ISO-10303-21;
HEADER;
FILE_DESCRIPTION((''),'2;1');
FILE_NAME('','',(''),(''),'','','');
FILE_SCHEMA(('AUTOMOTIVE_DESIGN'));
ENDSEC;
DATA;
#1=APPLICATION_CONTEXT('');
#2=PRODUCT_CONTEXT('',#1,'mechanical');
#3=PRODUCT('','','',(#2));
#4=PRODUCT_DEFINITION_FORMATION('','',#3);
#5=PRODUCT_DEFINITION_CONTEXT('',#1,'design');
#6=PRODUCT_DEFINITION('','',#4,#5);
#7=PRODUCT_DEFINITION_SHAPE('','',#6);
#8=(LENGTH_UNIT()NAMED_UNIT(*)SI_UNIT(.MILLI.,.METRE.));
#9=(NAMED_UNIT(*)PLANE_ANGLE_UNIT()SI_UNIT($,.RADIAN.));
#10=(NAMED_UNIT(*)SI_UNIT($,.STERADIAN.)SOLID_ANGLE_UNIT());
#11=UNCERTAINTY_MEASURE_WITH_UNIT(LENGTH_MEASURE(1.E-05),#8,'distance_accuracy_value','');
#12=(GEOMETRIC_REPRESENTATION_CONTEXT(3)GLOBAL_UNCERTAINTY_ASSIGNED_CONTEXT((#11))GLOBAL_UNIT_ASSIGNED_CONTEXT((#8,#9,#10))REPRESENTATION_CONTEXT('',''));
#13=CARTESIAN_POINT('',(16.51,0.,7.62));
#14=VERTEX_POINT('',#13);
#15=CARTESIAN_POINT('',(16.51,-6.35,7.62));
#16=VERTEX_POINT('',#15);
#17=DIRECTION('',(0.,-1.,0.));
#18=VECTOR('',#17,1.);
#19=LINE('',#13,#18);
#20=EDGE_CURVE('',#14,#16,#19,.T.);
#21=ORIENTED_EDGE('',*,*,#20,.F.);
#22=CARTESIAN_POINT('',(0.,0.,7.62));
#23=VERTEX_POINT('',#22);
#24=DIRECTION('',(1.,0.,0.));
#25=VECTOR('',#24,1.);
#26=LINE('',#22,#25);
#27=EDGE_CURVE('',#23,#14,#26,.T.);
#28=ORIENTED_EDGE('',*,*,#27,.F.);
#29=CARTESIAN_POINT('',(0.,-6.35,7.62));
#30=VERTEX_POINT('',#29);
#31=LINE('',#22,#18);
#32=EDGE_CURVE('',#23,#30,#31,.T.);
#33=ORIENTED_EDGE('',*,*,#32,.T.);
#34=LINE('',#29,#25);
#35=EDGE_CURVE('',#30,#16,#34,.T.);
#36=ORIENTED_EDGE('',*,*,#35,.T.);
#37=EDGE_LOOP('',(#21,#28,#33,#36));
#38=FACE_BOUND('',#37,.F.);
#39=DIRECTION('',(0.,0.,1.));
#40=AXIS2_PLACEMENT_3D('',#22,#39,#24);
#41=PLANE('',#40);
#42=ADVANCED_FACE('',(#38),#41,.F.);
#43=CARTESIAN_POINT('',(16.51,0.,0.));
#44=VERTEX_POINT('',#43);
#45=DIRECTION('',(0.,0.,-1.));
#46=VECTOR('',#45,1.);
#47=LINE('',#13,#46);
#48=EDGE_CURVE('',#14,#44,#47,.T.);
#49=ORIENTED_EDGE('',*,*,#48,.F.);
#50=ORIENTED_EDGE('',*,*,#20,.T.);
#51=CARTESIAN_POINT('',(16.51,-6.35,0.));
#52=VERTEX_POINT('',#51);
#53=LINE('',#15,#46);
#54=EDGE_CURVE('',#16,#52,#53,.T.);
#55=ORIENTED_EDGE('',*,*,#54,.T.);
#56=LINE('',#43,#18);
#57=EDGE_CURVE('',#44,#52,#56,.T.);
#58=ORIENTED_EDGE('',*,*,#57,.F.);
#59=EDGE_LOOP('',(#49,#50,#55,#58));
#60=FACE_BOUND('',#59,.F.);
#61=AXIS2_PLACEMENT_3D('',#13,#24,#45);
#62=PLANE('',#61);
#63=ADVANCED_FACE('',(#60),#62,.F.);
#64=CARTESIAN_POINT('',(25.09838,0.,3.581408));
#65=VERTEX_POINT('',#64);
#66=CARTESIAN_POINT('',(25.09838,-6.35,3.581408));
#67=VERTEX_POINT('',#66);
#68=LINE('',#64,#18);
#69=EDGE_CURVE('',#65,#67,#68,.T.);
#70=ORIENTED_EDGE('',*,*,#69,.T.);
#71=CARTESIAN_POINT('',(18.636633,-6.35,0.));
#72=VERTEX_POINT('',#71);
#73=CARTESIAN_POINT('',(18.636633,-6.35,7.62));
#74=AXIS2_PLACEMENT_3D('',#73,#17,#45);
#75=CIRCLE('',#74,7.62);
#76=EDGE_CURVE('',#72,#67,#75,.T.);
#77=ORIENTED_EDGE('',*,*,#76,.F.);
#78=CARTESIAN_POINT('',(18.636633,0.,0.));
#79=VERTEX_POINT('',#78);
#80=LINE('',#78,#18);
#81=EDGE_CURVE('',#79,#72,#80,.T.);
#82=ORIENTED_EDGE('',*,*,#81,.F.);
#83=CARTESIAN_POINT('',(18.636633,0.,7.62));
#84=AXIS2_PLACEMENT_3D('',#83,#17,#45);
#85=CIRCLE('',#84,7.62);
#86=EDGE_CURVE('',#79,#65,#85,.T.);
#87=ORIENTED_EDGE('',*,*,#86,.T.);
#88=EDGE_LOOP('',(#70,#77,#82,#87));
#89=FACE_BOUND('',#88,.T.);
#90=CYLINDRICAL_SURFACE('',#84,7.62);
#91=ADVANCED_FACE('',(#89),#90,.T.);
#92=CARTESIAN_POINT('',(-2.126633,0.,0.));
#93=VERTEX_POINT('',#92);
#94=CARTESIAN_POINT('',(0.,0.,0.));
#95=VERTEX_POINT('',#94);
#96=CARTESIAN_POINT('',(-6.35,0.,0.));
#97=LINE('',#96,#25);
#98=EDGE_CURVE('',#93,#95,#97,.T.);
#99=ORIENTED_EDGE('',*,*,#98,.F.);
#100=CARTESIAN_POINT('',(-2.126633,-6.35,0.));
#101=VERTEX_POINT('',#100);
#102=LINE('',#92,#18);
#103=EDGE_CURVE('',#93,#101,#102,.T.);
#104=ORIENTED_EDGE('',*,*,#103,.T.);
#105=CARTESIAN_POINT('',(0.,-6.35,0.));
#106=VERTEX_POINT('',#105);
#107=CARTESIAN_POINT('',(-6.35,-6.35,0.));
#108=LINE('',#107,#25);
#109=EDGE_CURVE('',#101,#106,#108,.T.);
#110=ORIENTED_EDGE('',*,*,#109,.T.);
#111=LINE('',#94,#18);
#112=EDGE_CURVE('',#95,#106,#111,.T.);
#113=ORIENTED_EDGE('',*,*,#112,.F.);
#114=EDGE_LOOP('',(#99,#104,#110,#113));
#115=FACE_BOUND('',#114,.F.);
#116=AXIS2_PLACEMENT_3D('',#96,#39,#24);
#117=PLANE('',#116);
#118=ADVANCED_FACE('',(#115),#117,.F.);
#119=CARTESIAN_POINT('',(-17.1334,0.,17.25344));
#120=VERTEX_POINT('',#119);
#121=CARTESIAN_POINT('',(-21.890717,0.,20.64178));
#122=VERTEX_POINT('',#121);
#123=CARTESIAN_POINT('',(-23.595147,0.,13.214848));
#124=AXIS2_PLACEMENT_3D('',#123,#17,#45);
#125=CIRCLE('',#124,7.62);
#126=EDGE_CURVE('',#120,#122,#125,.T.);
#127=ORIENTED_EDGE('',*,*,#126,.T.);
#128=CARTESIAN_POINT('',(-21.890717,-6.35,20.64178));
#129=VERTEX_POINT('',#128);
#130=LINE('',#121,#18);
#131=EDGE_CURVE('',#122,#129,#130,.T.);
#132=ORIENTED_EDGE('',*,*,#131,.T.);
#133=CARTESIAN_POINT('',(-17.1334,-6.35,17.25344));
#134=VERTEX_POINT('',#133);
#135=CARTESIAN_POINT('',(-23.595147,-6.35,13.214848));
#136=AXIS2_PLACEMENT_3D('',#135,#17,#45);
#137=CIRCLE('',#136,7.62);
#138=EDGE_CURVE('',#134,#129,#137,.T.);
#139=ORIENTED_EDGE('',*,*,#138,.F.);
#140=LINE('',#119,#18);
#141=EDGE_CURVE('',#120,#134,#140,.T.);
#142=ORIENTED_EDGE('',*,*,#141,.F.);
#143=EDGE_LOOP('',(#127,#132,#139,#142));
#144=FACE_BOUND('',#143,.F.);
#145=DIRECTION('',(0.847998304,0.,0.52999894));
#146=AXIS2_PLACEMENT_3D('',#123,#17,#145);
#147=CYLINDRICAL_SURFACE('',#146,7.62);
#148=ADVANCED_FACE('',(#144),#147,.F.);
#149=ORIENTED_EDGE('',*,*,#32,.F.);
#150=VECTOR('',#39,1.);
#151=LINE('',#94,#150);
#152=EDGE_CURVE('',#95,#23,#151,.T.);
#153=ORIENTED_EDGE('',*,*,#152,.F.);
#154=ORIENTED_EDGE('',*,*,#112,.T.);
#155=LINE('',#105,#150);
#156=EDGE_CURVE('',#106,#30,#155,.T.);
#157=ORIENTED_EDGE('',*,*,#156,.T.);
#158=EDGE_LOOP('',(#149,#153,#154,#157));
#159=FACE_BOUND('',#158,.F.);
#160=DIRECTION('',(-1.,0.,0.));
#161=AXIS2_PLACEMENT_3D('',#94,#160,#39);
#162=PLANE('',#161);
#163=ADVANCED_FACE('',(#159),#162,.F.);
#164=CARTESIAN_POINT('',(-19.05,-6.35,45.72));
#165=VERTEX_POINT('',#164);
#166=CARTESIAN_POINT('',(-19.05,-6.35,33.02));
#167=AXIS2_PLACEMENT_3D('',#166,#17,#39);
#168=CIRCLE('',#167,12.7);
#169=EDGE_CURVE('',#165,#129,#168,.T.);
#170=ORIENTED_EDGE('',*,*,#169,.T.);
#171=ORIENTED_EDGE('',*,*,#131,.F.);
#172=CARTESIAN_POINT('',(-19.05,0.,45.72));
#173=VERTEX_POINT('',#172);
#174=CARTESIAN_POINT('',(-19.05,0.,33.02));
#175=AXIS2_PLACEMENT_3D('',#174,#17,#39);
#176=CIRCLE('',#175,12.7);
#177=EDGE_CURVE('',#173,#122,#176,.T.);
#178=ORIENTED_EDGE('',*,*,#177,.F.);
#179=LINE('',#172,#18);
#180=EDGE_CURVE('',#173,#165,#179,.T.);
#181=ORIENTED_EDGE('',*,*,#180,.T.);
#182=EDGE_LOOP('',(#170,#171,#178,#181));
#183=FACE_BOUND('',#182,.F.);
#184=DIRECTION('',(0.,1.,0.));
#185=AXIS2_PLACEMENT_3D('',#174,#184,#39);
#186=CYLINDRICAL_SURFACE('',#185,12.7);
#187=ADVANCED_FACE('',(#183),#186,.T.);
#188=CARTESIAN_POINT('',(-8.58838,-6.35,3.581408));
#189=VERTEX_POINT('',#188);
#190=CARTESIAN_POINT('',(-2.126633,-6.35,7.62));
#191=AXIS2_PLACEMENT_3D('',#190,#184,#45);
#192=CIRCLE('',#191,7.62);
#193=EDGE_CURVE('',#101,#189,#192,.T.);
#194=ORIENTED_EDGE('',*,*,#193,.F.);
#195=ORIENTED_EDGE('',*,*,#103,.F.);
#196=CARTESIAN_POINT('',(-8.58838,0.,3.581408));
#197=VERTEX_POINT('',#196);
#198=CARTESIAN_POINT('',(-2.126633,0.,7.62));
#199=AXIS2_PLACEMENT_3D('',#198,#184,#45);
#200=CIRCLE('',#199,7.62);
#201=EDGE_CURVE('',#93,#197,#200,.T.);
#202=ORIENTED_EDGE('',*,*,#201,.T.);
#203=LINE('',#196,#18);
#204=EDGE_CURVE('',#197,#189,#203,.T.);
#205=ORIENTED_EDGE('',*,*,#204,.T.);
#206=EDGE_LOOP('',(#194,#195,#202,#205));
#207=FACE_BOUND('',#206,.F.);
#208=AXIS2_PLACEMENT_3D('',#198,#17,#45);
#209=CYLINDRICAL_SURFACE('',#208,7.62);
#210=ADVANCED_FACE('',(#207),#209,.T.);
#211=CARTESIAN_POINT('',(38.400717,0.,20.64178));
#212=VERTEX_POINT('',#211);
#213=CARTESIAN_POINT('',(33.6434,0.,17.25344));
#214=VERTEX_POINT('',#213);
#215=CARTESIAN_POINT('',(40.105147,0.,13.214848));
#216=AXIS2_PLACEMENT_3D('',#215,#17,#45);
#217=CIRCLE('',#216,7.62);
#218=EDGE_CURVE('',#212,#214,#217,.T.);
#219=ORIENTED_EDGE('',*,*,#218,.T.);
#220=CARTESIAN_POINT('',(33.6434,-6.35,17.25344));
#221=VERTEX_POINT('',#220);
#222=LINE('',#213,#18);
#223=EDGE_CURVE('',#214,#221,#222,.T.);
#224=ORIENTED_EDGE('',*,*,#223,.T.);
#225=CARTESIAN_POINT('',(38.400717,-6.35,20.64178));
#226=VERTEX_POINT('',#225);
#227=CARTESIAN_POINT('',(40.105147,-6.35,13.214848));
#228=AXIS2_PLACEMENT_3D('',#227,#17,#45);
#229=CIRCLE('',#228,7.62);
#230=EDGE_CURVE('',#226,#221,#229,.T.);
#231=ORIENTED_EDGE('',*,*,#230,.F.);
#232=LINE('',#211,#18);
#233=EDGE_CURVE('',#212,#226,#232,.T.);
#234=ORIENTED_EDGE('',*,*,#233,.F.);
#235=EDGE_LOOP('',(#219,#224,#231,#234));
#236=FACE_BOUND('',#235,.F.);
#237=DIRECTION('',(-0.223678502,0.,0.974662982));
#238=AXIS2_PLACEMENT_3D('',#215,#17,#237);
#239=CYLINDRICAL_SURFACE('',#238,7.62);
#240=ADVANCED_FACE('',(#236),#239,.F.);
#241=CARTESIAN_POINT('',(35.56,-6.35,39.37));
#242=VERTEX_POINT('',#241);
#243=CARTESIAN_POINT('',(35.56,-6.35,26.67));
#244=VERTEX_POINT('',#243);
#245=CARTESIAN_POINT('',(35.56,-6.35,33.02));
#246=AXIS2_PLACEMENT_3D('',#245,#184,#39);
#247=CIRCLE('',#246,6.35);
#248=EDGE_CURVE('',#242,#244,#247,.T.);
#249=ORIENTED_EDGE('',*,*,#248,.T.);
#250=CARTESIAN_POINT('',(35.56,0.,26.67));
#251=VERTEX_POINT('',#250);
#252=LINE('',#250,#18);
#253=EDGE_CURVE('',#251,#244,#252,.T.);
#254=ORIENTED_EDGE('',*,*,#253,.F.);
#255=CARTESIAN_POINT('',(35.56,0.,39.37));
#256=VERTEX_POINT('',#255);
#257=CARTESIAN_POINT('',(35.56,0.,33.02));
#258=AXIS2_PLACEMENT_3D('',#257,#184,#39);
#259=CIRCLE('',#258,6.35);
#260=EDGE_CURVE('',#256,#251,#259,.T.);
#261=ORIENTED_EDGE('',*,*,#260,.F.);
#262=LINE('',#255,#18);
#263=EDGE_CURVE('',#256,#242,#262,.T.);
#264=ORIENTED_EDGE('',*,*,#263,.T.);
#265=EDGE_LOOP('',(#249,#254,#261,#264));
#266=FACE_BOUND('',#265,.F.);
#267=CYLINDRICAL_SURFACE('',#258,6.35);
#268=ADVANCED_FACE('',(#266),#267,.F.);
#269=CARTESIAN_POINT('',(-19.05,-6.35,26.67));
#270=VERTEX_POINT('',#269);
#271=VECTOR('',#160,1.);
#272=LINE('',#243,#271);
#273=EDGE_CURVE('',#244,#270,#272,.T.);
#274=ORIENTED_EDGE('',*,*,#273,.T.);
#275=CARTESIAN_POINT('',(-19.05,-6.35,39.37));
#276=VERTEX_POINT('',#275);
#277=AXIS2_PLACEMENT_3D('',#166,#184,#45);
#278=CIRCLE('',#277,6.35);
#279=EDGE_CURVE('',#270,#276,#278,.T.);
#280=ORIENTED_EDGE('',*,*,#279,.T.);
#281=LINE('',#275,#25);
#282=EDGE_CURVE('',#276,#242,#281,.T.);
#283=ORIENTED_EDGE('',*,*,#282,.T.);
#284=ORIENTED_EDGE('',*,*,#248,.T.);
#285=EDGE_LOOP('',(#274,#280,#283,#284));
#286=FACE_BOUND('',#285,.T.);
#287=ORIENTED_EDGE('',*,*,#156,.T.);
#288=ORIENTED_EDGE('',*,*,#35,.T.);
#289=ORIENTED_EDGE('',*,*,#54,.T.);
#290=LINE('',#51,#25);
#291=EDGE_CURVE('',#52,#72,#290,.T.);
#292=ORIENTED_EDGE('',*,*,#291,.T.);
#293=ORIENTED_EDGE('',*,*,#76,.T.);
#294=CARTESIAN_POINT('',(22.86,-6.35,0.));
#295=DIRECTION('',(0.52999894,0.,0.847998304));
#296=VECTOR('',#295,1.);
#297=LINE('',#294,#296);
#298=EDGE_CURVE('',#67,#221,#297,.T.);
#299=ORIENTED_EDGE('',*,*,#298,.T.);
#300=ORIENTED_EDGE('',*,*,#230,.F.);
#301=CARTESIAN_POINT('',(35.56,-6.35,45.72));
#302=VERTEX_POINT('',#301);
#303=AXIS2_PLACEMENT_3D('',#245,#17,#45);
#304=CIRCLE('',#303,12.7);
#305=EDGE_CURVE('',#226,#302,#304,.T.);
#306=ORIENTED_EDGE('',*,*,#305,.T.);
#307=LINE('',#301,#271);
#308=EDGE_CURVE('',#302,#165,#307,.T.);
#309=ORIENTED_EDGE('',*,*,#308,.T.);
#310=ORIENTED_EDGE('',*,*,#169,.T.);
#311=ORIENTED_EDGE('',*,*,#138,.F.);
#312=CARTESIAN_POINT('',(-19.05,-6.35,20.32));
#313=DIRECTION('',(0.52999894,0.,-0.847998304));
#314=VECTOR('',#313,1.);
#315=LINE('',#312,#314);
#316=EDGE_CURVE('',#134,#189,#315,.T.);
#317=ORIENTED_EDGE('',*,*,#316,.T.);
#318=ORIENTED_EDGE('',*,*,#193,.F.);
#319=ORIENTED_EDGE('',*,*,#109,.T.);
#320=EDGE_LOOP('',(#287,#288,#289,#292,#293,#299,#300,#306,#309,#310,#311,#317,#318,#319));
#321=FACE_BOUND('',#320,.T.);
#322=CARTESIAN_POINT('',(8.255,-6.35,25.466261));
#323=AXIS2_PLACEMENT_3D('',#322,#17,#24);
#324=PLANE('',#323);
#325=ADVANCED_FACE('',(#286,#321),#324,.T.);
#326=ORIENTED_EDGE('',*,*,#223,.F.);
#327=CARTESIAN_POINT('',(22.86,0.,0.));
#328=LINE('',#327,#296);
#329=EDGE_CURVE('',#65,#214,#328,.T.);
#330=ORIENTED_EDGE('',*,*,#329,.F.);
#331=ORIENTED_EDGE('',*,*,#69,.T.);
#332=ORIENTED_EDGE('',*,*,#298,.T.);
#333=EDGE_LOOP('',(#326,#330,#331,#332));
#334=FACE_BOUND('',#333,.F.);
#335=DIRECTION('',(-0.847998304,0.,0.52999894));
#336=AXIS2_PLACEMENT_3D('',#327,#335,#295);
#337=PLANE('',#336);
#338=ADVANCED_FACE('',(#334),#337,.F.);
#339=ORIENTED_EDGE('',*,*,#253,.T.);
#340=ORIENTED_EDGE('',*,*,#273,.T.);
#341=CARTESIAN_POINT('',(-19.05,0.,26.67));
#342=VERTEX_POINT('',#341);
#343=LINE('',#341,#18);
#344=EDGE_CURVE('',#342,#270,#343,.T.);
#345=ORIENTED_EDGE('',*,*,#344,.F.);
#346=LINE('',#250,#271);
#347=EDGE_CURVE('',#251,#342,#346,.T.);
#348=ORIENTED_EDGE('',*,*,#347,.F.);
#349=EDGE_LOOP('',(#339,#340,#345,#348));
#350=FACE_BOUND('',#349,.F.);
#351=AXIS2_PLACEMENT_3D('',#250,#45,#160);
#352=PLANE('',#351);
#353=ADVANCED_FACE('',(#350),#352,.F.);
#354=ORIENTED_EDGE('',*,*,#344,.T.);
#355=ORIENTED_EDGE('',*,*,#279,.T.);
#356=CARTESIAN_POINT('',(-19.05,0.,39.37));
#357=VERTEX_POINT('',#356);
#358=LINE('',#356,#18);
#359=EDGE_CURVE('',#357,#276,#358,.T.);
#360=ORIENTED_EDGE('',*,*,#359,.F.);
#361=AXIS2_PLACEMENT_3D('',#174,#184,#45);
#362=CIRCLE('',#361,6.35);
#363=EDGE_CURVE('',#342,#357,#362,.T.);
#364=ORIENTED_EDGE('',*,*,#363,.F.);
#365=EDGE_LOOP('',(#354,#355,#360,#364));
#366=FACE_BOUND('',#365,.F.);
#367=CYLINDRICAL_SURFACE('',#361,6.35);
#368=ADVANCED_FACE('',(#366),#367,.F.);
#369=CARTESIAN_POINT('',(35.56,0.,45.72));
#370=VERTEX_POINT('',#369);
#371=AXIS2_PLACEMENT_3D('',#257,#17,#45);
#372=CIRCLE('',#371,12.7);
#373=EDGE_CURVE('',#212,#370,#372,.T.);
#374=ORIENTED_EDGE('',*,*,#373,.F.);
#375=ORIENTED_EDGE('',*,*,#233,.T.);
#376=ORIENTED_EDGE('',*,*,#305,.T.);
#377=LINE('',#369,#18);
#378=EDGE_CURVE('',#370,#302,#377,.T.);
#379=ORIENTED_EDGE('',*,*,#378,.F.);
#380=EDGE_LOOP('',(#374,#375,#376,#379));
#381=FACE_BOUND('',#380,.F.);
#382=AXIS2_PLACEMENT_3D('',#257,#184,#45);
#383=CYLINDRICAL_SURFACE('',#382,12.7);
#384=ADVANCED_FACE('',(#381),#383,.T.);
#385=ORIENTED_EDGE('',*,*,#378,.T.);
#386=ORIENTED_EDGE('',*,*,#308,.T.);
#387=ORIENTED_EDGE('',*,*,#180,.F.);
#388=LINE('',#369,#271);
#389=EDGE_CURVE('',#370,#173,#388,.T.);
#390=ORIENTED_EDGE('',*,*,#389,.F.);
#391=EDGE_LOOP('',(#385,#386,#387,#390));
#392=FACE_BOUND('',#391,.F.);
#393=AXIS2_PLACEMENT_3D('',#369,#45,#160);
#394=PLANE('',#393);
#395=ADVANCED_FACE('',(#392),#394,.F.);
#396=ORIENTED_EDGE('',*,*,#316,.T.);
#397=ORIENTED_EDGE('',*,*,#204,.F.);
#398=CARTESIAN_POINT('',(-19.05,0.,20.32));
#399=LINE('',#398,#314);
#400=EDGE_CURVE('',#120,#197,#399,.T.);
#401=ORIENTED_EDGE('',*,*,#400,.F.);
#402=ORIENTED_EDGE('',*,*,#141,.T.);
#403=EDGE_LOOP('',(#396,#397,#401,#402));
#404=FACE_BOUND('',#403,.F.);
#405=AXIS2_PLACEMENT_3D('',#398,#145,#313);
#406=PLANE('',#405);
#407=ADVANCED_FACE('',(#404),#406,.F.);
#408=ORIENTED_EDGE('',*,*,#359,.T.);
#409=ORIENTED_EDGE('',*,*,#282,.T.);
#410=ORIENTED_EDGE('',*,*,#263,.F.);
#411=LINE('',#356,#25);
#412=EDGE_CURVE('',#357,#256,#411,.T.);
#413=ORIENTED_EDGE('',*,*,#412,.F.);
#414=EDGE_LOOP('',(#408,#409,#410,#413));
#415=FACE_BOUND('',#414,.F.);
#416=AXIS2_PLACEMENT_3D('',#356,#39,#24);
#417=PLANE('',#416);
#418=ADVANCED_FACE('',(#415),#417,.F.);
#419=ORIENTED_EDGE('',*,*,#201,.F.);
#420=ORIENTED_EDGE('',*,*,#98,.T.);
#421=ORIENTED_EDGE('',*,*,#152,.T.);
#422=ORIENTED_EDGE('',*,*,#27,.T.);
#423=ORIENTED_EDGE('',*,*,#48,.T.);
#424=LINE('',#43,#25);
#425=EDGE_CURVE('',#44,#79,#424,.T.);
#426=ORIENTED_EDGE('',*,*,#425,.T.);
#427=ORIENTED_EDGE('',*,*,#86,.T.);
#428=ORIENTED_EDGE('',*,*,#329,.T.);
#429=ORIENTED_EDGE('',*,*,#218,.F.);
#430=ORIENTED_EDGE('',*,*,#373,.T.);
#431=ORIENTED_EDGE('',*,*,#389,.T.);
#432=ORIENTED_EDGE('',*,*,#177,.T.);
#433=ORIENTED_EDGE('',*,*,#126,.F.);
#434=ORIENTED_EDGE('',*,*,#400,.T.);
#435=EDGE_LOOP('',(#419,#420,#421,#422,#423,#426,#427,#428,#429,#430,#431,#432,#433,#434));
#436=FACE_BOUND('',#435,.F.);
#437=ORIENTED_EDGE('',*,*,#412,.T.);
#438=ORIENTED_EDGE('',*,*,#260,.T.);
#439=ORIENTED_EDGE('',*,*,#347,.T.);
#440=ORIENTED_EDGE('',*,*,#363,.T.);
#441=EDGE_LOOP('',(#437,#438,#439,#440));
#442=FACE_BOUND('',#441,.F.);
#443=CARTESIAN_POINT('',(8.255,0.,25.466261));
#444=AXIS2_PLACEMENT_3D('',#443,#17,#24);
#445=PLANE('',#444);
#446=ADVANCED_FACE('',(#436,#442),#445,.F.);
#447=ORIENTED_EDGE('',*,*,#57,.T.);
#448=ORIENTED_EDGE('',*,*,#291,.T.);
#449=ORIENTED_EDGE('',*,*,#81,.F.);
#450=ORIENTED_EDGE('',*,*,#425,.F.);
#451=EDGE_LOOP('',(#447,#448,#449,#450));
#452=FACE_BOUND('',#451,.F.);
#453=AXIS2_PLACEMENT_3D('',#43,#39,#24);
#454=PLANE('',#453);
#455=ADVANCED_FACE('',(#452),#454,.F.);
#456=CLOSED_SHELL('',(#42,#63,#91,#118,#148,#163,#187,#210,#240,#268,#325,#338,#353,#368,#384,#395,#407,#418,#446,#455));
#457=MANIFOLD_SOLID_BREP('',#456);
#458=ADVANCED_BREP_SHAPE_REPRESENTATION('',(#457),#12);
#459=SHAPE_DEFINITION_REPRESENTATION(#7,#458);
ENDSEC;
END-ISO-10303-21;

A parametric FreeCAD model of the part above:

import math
import FreeCAD as App
import Part
import Sketcher
Q = App.Units.Quantity


def edges_at(feature, points):
    """Names of the edges that pass closest to the given points."""
    edges = feature.Shape.Edges
    near = lambda p: min(range(len(edges)), key=lambda i: edges[i].distToShape(Part.Vertex(*p))[0])
    return sorted({f"Edge{near(p) + 1}" for p in points})

doc = App.newDocument("Part")
body = doc.addObject("PartDesign::Body", "Body")

# Sketch on XZ plane
sketch1 = doc.addObject("Sketcher::SketchObject", "Sketch")
body.addObject(sketch1)
sketch1.AttachmentSupport = (doc.XZ_Plane, [""])
sketch1.MapMode = "FlatFace"
sketch1.addGeometry(Part.LineSegment(App.Vector(-6.35, 0, 0), App.Vector(0, 0, 0)), False)
sketch1.addGeometry(Part.LineSegment(App.Vector(0, 0, 0), App.Vector(0, 7.62, 0)), False)
sketch1.addGeometry(Part.LineSegment(App.Vector(0, 7.62, 0), App.Vector(16.51, 7.62, 0)), False)
sketch1.addGeometry(Part.LineSegment(App.Vector(16.51, 7.62, 0), App.Vector(16.51, 0, 0)), False)
sketch1.addGeometry(Part.LineSegment(App.Vector(16.51, 0, 0), App.Vector(22.86, 0, 0)), False)
sketch1.addGeometry(Part.LineSegment(App.Vector(22.86, 0, 0), App.Vector(35.56, 20.32, 0)), False)
sketch1.addGeometry(Part.ArcOfCircle(Part.Circle(App.Vector(35.56, 33.02, 0), App.Vector(0, 0, 1), 12.7), math.radians(-90), math.radians(90)), False)
sketch1.addGeometry(Part.LineSegment(App.Vector(35.56, 45.72, 0), App.Vector(-19.05, 45.72, 0)), False)
sketch1.addGeometry(Part.ArcOfCircle(Part.Circle(App.Vector(-19.05, 33.02, 0), App.Vector(0, 0, 1), 12.7), math.radians(90), math.radians(270)), False)
sketch1.addGeometry(Part.LineSegment(App.Vector(-19.05, 20.32, 0), App.Vector(-6.35, 0, 0)), False)
sketch1.addGeometry(Part.ArcOfCircle(Part.Circle(App.Vector(35.56, 33.02, 0), App.Vector(0, 0, 1), 6.35), math.radians(-90), math.radians(90)), False)
sketch1.addGeometry(Part.LineSegment(App.Vector(35.56, 26.67, 0), App.Vector(-19.05, 26.67, 0)), False)
sketch1.addGeometry(Part.ArcOfCircle(Part.Circle(App.Vector(-19.05, 33.02, 0), App.Vector(0, 0, 1), 6.35), math.radians(90), math.radians(270)), False)
sketch1.addGeometry(Part.LineSegment(App.Vector(-19.05, 39.37, 0), App.Vector(35.56, 39.37, 0)), False)
sketch1.addConstraint(Sketcher.Constraint("Coincident", 0, 2, 1, 1))
sketch1.addConstraint(Sketcher.Constraint("Coincident", 1, 2, 2, 1))
sketch1.addConstraint(Sketcher.Constraint("Coincident", 2, 2, 3, 1))
sketch1.addConstraint(Sketcher.Constraint("Coincident", 3, 2, 4, 1))
sketch1.addConstraint(Sketcher.Constraint("Coincident", 4, 2, 5, 1))
sketch1.addConstraint(Sketcher.Constraint("Coincident", 5, 2, 6, 1))
sketch1.addConstraint(Sketcher.Constraint("Tangent", 6, 2, 7, 1))
sketch1.addConstraint(Sketcher.Constraint("Tangent", 7, 2, 8, 1))
sketch1.addConstraint(Sketcher.Constraint("Coincident", 8, 2, 9, 1))
sketch1.addConstraint(Sketcher.Constraint("Coincident", 9, 2, 0, 1))
sketch1.addConstraint(Sketcher.Constraint("Tangent", 10, 1, 11, 1))
sketch1.addConstraint(Sketcher.Constraint("Tangent", 11, 2, 12, 2))
sketch1.addConstraint(Sketcher.Constraint("Tangent", 12, 1, 13, 1))
sketch1.addConstraint(Sketcher.Constraint("Tangent", 13, 2, 10, 2))
sketch1.addConstraint(Sketcher.Constraint("Horizontal", 0))
sketch1.addConstraint(Sketcher.Constraint("Vertical", 1))
sketch1.addConstraint(Sketcher.Constraint("Horizontal", 2))
sketch1.addConstraint(Sketcher.Constraint("Vertical", 3))
sketch1.addConstraint(Sketcher.Constraint("Horizontal", 4))
sketch1.addConstraint(Sketcher.Constraint("Horizontal", 7))
sketch1.addConstraint(Sketcher.Constraint("Horizontal", 11))
sketch1.addConstraint(Sketcher.Constraint("Horizontal", 13))
sketch1.addConstraint(Sketcher.Constraint("Coincident", 0, 2, -1, 1))
sketch1.addConstraint(Sketcher.Constraint("Coincident", 10, 3, 6, 3))
sketch1.addConstraint(Sketcher.Constraint("Coincident", 12, 3, 8, 3))
sketch1.addConstraint(Sketcher.Constraint("PointOnObject", 3, 2, -1))
sketch1.addConstraint(Sketcher.Constraint("Vertical", 10, 3, 5, 2))
sketch1.addConstraint(Sketcher.Constraint("Vertical", 7, 2, 8, 2))
sketch1.addConstraint(Sketcher.Constraint("Equal", 0, 4))
sketch1.addConstraint(Sketcher.Constraint("Equal", 5, 9))
sketch1.addConstraint(Sketcher.Constraint("Radius", 6, Q("0.5 in")))
sketch1.addConstraint(Sketcher.Constraint("Radius", 10, Q("0.25 in")))
sketch1.addConstraint(Sketcher.Constraint("DistanceY", 1, 1, 1, 2, Q("0.3 in")))
sketch1.addConstraint(Sketcher.Constraint("DistanceY", 1, 2, 8, 3, Q("1 in")))
sketch1.addConstraint(Sketcher.Constraint("DistanceX", 0, 1, 0, 2, Q("0.25 in")))
sketch1.addConstraint(Sketcher.Constraint("DistanceX", 2, 1, 2, 2, Q("0.65 in")))
sketch1.addConstraint(Sketcher.Constraint("DistanceX", 7, 2, 7, 1, Q("2.15 in")))
pad1 = doc.addObject("PartDesign::Pad", "Pad")
body.addObject(pad1)
pad1.Profile = sketch1
pad1.Length = Q("0.25 in")
doc.recompute()

fillet = doc.addObject("PartDesign::Fillet", "Fillet")
body.addObject(fillet)
fillet.Base = (pad1, edges_at(pad1, [
    (22.86, -3.175, 0),
    (-6.35, -3.175, 0),
    (35.56, -3.175, 20.32),
    (-19.05, -3.175, 20.32),
]))
fillet.Radius = Q("0.3 in")

doc.recompute()
